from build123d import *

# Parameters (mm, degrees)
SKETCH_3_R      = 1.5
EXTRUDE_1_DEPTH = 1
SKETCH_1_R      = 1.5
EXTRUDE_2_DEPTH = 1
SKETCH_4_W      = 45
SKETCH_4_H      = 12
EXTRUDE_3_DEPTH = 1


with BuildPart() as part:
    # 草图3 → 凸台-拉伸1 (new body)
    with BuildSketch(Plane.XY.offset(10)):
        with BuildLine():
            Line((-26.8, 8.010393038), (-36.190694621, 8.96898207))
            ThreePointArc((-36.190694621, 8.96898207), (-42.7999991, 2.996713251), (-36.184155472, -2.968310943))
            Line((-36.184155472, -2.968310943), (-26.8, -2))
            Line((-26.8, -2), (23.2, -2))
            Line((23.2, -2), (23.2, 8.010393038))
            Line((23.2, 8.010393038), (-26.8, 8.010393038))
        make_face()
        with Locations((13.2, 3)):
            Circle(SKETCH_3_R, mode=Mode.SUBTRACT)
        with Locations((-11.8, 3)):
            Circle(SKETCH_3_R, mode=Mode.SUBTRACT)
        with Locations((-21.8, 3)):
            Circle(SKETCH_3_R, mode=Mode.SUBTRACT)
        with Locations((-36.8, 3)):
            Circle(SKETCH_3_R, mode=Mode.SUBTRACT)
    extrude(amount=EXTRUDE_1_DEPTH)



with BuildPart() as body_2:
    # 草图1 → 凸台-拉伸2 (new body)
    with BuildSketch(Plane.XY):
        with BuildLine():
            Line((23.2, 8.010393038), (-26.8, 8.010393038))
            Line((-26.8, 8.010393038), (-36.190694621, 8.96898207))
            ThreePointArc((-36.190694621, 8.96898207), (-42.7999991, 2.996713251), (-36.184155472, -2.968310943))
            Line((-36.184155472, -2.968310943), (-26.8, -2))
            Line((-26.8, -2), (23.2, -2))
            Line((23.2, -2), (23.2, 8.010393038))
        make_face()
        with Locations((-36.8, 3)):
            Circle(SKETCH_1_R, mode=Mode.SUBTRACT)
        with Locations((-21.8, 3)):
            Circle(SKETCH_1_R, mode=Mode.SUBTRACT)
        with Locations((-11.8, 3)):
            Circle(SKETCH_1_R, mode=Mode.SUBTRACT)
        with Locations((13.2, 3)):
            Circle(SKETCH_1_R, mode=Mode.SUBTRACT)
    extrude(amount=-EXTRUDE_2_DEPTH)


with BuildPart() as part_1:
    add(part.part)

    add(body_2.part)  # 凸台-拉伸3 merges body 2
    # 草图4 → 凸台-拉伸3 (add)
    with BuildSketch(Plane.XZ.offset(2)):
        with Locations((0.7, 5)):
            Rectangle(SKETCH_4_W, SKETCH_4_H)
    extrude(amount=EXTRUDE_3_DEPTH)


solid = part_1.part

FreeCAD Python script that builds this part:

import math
import FreeCAD as App
import Part
import Sketcher
from FreeCAD import Vector

doc = App.newDocument("Part")
body = doc.addObject("PartDesign::Body", "Body")

sketch1 = doc.addObject("Sketcher::SketchObject", "Sketch")
body.addObject(sketch1)
sketch1.AttachmentSupport = (doc.XY_Plane, [""])
sketch1.MapMode = "FlatFace"
sketch1.AttachmentOffset = App.Placement(Vector(0, 0, 10), App.Rotation())
sketch1.addGeometry(Part.LineSegment(Vector(-26.8, 8, 0), Vector(-36.2, 9, 0)), False)
sketch1.addGeometry(Part.ArcOfCircle(Part.Circle(Vector(-36.8, 3, 0), Vector(0, 0, 1), 6), math.radians(84), math.radians(276)), False)
sketch1.addGeometry(Part.LineSegment(Vector(-36.2, -3, 0), Vector(-26.8, -2, 0)), False)
sketch1.addGeometry(Part.LineSegment(Vector(-26.8, -2, 0), Vector(23.2, -2, 0)), False)
sketch1.addGeometry(Part.LineSegment(Vector(23.2, -2, 0), Vector(23.2, 8, 0)), False)
sketch1.addGeometry(Part.LineSegment(Vector(23.2, 8, 0), Vector(-26.8, 8, 0)), False)
sketch1.addGeometry(Part.Circle(Vector(-36.8, 3, 0), Vector(0, 0, 1), 1.5), False)
sketch1.addGeometry(Part.Circle(Vector(-21.8, 3, 0), Vector(0, 0, 1), 1.5), False)
sketch1.addGeometry(Part.Circle(Vector(-11.8, 3, 0), Vector(0, 0, 1), 1.5), False)
sketch1.addGeometry(Part.Circle(Vector(13.2, 3, 0), Vector(0, 0, 1), 1.5), False)
sketch1.addConstraint(Sketcher.Constraint("Tangent", 0, 2, 1, 1))
sketch1.addConstraint(Sketcher.Constraint("Tangent", 1, 2, 2, 1))
sketch1.addConstraint(Sketcher.Constraint("Coincident", 2, 2, 3, 1))
sketch1.addConstraint(Sketcher.Constraint("Coincident", 3, 2, 4, 1))
sketch1.addConstraint(Sketcher.Constraint("Coincident", 4, 2, 5, 1))
sketch1.addConstraint(Sketcher.Constraint("Coincident", 5, 2, 0, 1))
sketch1.addConstraint(Sketcher.Constraint("Horizontal", 3))
sketch1.addConstraint(Sketcher.Constraint("Vertical", 4))
sketch1.addConstraint(Sketcher.Constraint("Horizontal", 5))
sketch1.addConstraint(Sketcher.Constraint("Coincident", 6, 3, 1, 3))
sketch1.addConstraint(Sketcher.Constraint("Equal", 6, 7))
sketch1.addConstraint(Sketcher.Constraint("Equal", 7, 8))
sketch1.addConstraint(Sketcher.Constraint("Equal", 8, 9))
sketch1.addConstraint(Sketcher.Constraint("Horizontal", 6, 3, 7, 3))
sketch1.addConstraint(Sketcher.Constraint("Horizontal", 7, 3, 8, 3))
sketch1.addConstraint(Sketcher.Constraint("Horizontal", 8, 3, 9, 3))
sketch1.addConstraint(Sketcher.Constraint("Vertical", 2, 2, 5, 2))
sketch1.addConstraint(Sketcher.Constraint("Diameter", 6, 3.0))
sketch1.addConstraint(Sketcher.Constraint("Radius", 1, 6.0))
sketch1.addConstraint(Sketcher.Constraint("DistanceX", 3, 1, 3, 2, 50.0))
sketch1.addConstraint(Sketcher.Constraint("DistanceY", -1, 1, 1, 3, 3.0))
sketch1.addConstraint(Sketcher.Constraint("DistanceY", 2, 2, -1, 1, 2.0))
sketch1.addConstraint(Sketcher.Constraint("DistanceX", 6, 3, 7, 3, 15.0))
sketch1.addConstraint(Sketcher.Constraint("DistanceX", 7, 3, 8, 3, 10.0))
sketch1.addConstraint(Sketcher.Constraint("DistanceX", 8, 3, 9, 3, 25.0))
sketch1.addConstraint(Sketcher.Constraint("DistanceX", 2, 2, 7, 3, 5.0))
sketch1.addConstraint(Sketcher.Constraint("DistanceX", 1, 3, -1, 1, 36.8))
sketch1.addConstraint(Sketcher.Constraint("DistanceY", 4, 1, 4, 2, 10.010393))
pad1 = doc.addObject("PartDesign::Pad", "Pad")
body.addObject(pad1)
pad1.Profile = sketch1
pad1.Length = 1
body2 = doc.addObject("PartDesign::Body", "Body001")

sketch2 = doc.addObject("Sketcher::SketchObject", "Sketch001")
body2.addObject(sketch2)
sketch2.AttachmentSupport = (doc.getObject("XY_Plane001"), [""])
sketch2.MapMode = "FlatFace"
sketch2.addGeometry(Part.LineSegment(Vector(23.2, 8, 0), Vector(-26.8, 8, 0)), False)
sketch2.addGeometry(Part.LineSegment(Vector(-26.8, 8, 0), Vector(-36.2, 9, 0)), False)
sketch2.addGeometry(Part.ArcOfCircle(Part.Circle(Vector(-36.8, 3, 0), Vector(0, 0, 1), 6), math.radians(84), math.radians(276)), False)
sketch2.addGeometry(Part.LineSegment(Vector(-36.2, -3, 0), Vector(-26.8, -2, 0)), False)
sketch2.addGeometry(Part.LineSegment(Vector(-26.8, -2, 0), Vector(23.2, -2, 0)), False)
sketch2.addGeometry(Part.LineSegment(Vector(23.2, -2, 0), Vector(23.2, 8, 0)), False)
sketch2.addGeometry(Part.Circle(Vector(-36.8, 3, 0), Vector(0, 0, 1), 1.5), False)
sketch2.addGeometry(Part.Circle(Vector(-21.8, 3, 0), Vector(0, 0, 1), 1.5), False)
sketch2.addGeometry(Part.Circle(Vector(-11.8, 3, 0), Vector(0, 0, 1), 1.5), False)
sketch2.addGeometry(Part.Circle(Vector(13.2, 3, 0), Vector(0, 0, 1), 1.5), False)
sketch2.addConstraint(Sketcher.Constraint("Coincident", 0, 2, 1, 1))
sketch2.addConstraint(Sketcher.Constraint("Tangent", 1, 2, 2, 1))
sketch2.addConstraint(Sketcher.Constraint("Tangent", 2, 2, 3, 1))
sketch2.addConstraint(Sketcher.Constraint("Coincident", 3, 2, 4, 1))
sketch2.addConstraint(Sketcher.Constraint("Coincident", 4, 2, 5, 1))
sketch2.addConstraint(Sketcher.Constraint("Coincident", 5, 2, 0, 1))
sketch2.addConstraint(Sketcher.Constraint("Horizontal", 0))
sketch2.addConstraint(Sketcher.Constraint("Horizontal", 4))
sketch2.addConstraint(Sketcher.Constraint("Vertical", 5))
sketch2.addConstraint(Sketcher.Constraint("Coincident", 6, 3, 2, 3))
sketch2.addConstraint(Sketcher.Constraint("Equal", 6, 7))
sketch2.addConstraint(Sketcher.Constraint("Equal", 7, 8))
sketch2.addConstraint(Sketcher.Constraint("Equal", 8, 9))
sketch2.addConstraint(Sketcher.Constraint("Horizontal", 6, 3, 7, 3))
sketch2.addConstraint(Sketcher.Constraint("Horizontal", 7, 3, 8, 3))
sketch2.addConstraint(Sketcher.Constraint("Horizontal", 8, 3, 9, 3))
sketch2.addConstraint(Sketcher.Constraint("Vertical", 0, 2, 3, 2))
sketch2.addConstraint(Sketcher.Constraint("Diameter", 6, 3.0))
sketch2.addConstraint(Sketcher.Constraint("Radius", 2, 6.0))
sketch2.addConstraint(Sketcher.Constraint("DistanceX", 0, 2, 0, 1, 50.0))
sketch2.addConstraint(Sketcher.Constraint("DistanceY", -1, 1, 2, 3, 3.0))
sketch2.addConstraint(Sketcher.Constraint("DistanceY", 3, 2, -1, 1, 2.0))
sketch2.addConstraint(Sketcher.Constraint("DistanceX", 6, 3, 7, 3, 15.0))
sketch2.addConstraint(Sketcher.Constraint("DistanceX", 7, 3, 8, 3, 10.0))
sketch2.addConstraint(Sketcher.Constraint("DistanceX", 8, 3, 9, 3, 25.0))
sketch2.addConstraint(Sketcher.Constraint("DistanceX", 0, 2, 7, 3, 5.0))
sketch2.addConstraint(Sketcher.Constraint("DistanceX", 2, 3, -1, 1, 36.8))
sketch2.addConstraint(Sketcher.Constraint("DistanceY", 5, 1, 5, 2, 10.010393))
pad2 = doc.addObject("PartDesign::Pad", "Pad001")
body2.addObject(pad2)
pad2.Profile = sketch2
pad2.Length = 1
pad2.Reversed = True
body.AllowCompound = True
doc.recompute()

boolean = doc.addObject("PartDesign::Boolean", "Boolean")
body.addObject(boolean)
boolean.Type = "Fuse"
boolean.addObjects([body2])

sketch3 = doc.addObject("Sketcher::SketchObject", "Sketch002")
body.addObject(sketch3)
sketch3.AttachmentSupport = (doc.XZ_Plane, [""])
sketch3.MapMode = "FlatFace"
sketch3.AttachmentOffset = App.Placement(Vector(0, 0, 2), App.Rotation())
sketch3.addGeometry(Part.LineSegment(Vector(-22, 11, 0), Vector(-22, -1, 0)), False)
sketch3.addGeometry(Part.LineSegment(Vector(-22, -1, 0), Vector(23, -1, 0)), False)
sketch3.addGeometry(Part.LineSegment(Vector(23, -1, 0), Vector(23, 11, 0)), False)
sketch3.addGeometry(Part.LineSegment(Vector(23, 11, 0), Vector(-22, 11, 0)), False)
sketch3.addConstraint(Sketcher.Constraint("Coincident", 0, 2, 1, 1))
sketch3.addConstraint(Sketcher.Constraint("Coincident", 1, 2, 2, 1))
sketch3.addConstraint(Sketcher.Constraint("Coincident", 2, 2, 3, 1))
sketch3.addConstraint(Sketcher.Constraint("Coincident", 3, 2, 0, 1))
sketch3.addConstraint(Sketcher.Constraint("Vertical", 0))
sketch3.addConstraint(Sketcher.Constraint("Horizontal", 1))
sketch3.addConstraint(Sketcher.Constraint("Vertical", 2))
sketch3.addConstraint(Sketcher.Constraint("Horizontal", 3))
sketch3.addConstraint(Sketcher.Constraint("DistanceX", 1, 1, 1, 2, 45.0))
sketch3.addConstraint(Sketcher.Constraint("DistanceY", 0, 2, 0, 1, 12.0))
sketch3.addConstraint(Sketcher.Constraint("DistanceY", 0, 2, -1, 1, 1.0))
sketch3.addConstraint(Sketcher.Constraint("DistanceX", 0, 2, -1, 1, 21.8))
pad3 = doc.addObject("PartDesign::Pad", "Pad002")
body.addObject(pad3)
pad3.Profile = sketch3
pad3.Length = 1

doc.recompute()
